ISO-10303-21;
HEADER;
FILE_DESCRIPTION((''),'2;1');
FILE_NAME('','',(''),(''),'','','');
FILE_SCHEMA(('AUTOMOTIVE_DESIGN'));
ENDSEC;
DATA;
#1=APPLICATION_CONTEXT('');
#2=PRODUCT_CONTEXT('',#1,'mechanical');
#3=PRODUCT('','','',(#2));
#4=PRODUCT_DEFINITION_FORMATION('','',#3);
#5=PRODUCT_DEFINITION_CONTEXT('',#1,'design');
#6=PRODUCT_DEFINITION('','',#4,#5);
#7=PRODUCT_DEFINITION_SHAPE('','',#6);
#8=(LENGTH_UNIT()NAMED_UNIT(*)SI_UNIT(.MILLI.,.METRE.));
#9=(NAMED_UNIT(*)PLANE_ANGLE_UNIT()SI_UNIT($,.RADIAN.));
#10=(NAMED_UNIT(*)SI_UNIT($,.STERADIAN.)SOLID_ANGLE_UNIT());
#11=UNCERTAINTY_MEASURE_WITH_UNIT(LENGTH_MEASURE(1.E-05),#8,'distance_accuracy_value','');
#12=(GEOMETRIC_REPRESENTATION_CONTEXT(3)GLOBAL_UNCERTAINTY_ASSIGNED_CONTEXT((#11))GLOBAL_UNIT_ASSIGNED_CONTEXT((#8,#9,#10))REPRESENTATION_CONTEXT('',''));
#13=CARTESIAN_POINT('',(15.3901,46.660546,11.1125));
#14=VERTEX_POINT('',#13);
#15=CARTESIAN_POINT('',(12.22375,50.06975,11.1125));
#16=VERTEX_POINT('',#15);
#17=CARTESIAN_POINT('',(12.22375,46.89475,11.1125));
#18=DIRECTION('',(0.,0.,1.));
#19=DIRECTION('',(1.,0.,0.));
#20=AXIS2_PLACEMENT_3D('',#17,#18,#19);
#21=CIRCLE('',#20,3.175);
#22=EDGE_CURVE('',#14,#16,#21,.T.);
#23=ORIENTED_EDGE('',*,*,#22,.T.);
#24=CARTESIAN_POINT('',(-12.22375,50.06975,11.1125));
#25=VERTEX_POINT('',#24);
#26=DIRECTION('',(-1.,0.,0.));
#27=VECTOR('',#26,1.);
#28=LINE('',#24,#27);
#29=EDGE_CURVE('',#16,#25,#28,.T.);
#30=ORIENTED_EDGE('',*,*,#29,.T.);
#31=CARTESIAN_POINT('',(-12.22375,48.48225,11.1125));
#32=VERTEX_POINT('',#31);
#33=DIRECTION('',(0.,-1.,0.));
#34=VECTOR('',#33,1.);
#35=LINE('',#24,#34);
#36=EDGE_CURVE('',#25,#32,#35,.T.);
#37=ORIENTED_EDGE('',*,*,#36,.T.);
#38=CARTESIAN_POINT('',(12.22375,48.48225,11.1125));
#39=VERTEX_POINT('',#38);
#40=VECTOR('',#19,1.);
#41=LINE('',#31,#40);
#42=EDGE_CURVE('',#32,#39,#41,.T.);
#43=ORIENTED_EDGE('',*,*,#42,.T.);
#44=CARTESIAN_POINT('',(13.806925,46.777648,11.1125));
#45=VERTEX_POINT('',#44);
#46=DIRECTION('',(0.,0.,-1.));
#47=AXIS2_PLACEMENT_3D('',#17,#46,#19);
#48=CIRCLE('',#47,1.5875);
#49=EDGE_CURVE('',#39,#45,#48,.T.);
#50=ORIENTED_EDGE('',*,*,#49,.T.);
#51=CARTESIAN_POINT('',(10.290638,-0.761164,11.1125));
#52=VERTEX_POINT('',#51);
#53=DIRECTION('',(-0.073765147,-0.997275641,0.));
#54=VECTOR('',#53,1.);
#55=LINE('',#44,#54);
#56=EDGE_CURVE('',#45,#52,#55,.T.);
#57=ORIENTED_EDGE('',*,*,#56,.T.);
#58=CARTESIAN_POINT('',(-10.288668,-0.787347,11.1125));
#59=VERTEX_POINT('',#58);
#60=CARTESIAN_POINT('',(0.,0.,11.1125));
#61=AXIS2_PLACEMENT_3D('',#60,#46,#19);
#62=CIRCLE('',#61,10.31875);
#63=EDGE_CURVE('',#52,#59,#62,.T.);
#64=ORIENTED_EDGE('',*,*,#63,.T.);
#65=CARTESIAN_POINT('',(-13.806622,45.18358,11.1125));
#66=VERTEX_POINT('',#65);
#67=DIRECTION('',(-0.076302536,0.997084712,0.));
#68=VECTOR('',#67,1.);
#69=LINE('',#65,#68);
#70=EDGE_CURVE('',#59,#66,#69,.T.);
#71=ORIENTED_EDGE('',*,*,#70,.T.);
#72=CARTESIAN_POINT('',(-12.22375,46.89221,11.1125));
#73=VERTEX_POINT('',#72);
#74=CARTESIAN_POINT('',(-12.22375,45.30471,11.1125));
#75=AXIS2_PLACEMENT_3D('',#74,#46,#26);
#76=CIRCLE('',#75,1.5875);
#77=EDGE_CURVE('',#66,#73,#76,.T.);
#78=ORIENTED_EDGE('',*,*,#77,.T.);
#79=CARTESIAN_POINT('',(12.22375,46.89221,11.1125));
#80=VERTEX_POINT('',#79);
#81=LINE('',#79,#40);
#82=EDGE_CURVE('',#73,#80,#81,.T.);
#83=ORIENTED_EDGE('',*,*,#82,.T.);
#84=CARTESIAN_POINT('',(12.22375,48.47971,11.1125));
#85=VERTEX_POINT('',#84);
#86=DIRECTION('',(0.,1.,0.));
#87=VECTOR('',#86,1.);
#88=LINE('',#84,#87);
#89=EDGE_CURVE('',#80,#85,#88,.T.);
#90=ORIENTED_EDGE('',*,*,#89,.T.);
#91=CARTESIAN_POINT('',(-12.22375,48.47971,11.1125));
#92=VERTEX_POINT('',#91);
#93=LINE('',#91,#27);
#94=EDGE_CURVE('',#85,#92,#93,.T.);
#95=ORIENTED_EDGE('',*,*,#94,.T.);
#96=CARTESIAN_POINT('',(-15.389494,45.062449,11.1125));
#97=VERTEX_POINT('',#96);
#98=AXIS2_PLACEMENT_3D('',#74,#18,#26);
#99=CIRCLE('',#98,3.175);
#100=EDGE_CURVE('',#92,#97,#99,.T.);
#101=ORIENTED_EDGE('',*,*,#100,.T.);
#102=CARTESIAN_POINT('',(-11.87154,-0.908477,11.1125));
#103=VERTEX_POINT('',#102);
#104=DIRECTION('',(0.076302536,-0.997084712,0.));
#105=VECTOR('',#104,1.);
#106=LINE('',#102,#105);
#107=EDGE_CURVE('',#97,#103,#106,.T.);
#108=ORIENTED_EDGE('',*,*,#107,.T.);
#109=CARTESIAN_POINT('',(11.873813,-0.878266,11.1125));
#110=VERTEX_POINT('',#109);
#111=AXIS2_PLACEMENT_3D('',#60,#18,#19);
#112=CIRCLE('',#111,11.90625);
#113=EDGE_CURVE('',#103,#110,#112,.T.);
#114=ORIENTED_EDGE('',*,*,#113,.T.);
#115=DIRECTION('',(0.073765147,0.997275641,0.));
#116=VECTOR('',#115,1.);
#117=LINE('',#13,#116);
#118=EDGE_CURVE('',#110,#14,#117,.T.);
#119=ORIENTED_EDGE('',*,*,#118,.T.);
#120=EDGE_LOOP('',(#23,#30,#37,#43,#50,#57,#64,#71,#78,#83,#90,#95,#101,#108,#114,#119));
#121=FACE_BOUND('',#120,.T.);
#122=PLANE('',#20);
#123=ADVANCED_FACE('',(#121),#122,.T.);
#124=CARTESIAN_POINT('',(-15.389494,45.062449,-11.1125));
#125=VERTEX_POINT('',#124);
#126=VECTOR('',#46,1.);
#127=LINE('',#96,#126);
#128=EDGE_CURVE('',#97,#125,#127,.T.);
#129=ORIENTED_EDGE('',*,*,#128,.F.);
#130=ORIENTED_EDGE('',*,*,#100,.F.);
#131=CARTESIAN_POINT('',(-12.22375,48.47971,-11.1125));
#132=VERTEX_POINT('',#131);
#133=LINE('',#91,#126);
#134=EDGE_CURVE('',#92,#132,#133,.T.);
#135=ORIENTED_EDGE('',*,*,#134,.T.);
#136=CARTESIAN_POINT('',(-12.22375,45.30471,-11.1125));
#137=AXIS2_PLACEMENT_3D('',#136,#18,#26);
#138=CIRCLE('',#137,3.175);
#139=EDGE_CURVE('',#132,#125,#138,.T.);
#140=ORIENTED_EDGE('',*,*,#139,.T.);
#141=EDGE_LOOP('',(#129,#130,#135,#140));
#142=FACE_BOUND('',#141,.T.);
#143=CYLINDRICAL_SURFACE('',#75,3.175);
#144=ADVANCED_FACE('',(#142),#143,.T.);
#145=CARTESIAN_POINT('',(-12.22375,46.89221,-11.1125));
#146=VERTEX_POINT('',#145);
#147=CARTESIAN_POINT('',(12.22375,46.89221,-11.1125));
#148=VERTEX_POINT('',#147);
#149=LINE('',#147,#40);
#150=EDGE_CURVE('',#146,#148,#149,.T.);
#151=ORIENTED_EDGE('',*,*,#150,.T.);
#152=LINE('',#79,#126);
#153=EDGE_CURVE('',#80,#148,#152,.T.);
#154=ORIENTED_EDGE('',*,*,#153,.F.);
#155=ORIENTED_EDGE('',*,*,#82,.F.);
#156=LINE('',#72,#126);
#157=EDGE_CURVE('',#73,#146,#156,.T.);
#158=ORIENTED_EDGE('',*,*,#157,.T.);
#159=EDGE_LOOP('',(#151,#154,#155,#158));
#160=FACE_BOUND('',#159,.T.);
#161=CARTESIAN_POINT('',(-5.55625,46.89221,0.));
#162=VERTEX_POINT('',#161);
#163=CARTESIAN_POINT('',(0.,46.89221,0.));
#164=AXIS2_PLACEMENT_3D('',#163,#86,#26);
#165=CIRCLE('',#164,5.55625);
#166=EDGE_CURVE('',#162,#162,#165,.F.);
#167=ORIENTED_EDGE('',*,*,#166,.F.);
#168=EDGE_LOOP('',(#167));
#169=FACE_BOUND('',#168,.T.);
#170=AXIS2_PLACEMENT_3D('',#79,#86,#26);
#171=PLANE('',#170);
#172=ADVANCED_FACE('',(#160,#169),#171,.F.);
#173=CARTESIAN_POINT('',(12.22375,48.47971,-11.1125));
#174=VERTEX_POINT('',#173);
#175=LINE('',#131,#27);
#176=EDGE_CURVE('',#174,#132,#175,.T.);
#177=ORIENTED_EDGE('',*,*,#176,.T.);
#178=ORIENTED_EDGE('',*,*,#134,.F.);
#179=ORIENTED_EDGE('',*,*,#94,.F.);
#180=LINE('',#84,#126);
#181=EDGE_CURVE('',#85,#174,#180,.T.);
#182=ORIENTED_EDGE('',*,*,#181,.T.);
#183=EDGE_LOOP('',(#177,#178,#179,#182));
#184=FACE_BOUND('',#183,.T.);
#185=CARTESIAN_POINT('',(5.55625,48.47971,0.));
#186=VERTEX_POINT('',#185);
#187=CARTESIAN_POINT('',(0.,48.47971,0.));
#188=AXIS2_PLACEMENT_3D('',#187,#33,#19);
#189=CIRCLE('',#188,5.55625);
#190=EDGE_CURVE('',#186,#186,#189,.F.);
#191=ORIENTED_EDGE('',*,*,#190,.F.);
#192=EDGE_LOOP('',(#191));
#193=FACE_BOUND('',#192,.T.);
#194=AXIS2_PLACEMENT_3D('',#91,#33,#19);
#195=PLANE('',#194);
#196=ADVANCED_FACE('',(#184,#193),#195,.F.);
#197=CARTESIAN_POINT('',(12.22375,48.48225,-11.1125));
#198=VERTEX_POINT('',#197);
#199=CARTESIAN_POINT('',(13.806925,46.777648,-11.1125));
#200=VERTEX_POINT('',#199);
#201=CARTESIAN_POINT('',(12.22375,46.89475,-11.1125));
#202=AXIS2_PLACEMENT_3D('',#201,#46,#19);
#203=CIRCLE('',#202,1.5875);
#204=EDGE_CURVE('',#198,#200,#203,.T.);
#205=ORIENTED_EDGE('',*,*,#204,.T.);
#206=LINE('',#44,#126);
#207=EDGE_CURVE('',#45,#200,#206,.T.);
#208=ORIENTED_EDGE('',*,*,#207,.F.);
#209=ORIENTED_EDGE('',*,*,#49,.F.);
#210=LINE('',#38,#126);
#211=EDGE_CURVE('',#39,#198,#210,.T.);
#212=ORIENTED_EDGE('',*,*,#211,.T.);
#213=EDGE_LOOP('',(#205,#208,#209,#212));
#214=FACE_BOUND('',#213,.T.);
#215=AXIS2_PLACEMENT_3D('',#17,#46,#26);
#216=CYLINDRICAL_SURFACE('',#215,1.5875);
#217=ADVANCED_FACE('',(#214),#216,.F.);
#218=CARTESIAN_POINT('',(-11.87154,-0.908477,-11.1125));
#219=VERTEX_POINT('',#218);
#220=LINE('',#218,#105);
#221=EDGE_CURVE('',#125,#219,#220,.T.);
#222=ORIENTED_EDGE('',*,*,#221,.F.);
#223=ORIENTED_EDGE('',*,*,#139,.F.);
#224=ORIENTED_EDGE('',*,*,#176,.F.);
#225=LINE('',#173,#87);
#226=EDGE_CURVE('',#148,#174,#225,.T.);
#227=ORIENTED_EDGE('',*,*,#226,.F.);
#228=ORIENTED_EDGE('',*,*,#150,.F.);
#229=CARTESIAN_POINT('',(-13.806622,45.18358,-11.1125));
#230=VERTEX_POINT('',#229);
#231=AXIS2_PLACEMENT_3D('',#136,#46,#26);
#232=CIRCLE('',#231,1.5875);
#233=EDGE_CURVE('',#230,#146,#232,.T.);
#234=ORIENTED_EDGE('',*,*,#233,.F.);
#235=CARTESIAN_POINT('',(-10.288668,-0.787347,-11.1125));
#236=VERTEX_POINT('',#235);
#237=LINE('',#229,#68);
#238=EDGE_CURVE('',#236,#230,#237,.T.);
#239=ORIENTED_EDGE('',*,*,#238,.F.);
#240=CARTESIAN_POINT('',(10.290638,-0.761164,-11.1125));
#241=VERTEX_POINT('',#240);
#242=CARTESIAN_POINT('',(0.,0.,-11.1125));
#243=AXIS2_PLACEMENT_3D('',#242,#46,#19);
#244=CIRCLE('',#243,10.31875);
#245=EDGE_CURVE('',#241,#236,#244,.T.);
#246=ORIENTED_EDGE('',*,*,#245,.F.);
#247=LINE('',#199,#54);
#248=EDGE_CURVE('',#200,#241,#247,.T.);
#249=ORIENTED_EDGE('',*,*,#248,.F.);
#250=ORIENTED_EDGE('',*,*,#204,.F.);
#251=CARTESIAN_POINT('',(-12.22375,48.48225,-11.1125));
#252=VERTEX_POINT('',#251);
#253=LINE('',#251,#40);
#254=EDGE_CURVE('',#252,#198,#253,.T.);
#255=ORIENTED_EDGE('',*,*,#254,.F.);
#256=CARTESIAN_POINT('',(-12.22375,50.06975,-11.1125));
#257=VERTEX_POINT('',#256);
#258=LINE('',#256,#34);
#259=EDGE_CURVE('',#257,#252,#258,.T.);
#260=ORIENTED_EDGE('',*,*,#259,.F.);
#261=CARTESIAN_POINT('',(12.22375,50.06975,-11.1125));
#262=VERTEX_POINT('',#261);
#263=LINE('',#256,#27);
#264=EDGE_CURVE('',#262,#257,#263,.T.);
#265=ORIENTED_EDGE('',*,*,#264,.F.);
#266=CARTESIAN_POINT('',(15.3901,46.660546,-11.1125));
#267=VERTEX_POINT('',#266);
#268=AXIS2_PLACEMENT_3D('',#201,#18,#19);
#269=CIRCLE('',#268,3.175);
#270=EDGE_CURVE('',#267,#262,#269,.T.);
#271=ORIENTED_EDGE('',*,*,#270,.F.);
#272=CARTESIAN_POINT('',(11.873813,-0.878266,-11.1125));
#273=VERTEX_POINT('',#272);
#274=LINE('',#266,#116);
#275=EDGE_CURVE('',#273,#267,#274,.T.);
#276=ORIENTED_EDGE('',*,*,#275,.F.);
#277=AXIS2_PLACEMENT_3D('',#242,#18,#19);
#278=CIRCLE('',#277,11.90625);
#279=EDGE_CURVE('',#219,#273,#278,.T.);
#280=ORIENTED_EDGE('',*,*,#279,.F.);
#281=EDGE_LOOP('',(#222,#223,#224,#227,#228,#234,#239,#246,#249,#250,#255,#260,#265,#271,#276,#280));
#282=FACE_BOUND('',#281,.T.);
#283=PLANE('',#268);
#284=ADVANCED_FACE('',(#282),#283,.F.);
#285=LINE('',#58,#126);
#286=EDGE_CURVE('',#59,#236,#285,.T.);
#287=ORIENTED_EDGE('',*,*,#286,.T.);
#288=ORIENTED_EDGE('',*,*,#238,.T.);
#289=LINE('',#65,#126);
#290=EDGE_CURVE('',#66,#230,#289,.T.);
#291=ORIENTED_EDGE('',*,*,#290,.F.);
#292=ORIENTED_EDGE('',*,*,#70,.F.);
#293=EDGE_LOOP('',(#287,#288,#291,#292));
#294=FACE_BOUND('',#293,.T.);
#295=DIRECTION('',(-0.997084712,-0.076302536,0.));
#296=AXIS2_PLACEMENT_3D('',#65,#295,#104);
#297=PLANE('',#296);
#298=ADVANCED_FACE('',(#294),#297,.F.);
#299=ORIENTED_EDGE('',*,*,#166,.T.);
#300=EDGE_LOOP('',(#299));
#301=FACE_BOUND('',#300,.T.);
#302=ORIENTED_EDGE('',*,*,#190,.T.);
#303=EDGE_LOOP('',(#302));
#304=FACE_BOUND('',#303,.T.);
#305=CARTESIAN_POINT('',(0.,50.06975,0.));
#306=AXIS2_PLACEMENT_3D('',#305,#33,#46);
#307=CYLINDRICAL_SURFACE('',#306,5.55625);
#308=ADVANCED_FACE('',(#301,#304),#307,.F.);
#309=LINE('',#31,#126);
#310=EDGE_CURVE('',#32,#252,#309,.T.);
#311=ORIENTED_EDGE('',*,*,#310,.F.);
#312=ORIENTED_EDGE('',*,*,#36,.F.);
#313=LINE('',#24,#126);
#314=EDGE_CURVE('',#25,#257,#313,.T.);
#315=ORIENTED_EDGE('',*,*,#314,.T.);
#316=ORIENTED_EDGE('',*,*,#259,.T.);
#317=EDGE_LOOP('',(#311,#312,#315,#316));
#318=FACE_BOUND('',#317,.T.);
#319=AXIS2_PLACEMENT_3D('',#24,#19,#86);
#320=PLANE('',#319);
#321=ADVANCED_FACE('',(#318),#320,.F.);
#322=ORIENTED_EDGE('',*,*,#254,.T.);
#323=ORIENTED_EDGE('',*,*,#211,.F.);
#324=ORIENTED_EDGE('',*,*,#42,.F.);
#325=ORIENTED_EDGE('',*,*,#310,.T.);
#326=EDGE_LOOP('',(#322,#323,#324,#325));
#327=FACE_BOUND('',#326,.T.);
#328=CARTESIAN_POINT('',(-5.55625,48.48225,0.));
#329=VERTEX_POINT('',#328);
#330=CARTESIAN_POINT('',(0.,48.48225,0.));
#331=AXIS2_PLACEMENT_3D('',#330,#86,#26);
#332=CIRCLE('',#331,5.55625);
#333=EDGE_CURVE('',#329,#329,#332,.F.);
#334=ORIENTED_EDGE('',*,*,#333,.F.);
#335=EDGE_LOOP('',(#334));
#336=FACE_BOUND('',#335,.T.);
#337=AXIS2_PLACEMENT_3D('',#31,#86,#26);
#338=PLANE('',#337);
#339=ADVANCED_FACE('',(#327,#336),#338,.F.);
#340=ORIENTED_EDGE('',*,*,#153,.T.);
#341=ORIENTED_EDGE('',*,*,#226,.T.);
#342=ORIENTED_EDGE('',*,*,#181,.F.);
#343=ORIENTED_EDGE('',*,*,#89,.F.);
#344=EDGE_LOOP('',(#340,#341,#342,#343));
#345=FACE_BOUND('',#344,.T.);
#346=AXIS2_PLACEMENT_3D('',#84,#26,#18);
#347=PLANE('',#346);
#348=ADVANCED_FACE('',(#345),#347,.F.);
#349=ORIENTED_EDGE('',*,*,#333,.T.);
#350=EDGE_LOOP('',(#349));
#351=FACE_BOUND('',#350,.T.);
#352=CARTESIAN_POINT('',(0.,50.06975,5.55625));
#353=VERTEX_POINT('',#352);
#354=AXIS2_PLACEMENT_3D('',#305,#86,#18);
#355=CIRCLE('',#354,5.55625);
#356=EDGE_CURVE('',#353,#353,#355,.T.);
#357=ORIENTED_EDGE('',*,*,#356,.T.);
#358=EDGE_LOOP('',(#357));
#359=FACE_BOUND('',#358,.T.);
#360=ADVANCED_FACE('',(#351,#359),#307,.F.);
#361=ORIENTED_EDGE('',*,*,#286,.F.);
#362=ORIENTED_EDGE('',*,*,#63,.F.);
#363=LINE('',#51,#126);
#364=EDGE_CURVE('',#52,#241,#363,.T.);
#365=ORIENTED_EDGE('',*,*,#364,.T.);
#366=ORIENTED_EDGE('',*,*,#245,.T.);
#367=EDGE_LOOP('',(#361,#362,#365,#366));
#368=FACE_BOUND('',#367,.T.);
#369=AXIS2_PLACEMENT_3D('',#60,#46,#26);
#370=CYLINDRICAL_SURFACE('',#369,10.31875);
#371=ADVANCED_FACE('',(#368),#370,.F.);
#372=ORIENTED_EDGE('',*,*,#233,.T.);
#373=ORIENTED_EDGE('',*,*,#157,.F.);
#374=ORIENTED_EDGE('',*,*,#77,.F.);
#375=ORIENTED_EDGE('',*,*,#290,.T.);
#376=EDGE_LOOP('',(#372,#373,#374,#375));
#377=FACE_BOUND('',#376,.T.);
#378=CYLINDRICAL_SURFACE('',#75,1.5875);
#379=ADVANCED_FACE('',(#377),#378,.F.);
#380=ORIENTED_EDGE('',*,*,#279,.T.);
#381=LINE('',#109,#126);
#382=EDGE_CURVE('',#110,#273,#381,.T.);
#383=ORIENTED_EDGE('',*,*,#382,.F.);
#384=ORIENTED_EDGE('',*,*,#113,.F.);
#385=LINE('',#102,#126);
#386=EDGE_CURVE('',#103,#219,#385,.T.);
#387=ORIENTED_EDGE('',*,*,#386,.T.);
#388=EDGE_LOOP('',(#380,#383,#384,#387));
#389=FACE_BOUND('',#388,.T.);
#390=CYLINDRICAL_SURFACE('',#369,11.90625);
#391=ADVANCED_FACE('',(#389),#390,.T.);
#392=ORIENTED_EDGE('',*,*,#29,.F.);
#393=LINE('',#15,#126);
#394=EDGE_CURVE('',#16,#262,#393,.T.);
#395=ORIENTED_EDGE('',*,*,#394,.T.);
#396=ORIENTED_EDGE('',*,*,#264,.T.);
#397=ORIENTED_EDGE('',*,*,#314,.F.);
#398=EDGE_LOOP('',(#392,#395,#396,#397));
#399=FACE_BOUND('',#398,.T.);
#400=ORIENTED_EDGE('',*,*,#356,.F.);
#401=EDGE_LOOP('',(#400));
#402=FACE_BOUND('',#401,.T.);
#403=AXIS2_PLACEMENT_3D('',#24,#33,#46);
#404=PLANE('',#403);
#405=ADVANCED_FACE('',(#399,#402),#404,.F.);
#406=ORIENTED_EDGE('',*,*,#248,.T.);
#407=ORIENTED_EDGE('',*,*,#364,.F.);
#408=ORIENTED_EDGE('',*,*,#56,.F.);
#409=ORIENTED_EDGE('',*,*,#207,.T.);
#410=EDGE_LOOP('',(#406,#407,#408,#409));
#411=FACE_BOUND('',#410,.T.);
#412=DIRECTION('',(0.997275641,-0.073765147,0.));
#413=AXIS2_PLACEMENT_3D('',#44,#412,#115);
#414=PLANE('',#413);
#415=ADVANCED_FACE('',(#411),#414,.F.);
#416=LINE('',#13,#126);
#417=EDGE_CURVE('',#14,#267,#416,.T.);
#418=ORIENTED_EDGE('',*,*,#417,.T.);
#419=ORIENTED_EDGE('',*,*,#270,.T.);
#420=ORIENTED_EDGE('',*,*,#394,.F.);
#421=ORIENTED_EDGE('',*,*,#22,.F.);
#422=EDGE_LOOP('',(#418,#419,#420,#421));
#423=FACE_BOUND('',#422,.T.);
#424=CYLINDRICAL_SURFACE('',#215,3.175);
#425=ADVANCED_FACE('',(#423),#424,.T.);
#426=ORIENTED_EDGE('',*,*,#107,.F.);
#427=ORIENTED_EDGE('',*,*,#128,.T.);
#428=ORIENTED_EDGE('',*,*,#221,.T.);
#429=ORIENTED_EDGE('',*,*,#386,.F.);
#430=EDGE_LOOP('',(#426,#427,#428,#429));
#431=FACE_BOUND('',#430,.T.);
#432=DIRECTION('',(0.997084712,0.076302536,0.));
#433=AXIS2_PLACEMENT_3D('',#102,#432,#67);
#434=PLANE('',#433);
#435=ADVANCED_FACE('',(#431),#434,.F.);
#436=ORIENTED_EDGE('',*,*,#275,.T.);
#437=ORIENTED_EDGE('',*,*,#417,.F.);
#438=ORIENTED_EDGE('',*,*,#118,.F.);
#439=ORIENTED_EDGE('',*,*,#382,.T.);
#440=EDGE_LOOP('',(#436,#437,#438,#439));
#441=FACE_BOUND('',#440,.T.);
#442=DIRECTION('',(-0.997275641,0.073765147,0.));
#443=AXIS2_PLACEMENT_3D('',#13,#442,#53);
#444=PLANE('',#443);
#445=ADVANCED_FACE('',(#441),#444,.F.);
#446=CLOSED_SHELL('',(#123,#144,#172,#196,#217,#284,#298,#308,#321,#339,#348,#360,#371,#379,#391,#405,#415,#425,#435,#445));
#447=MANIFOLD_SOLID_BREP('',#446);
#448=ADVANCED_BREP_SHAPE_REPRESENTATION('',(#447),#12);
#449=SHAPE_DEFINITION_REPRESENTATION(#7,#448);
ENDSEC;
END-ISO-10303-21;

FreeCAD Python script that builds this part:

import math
import FreeCAD as App
import Part
import Sketcher

V = App.Vector
Q = App.Units.Quantity

doc = App.newDocument("Part")
body = doc.addObject("PartDesign::Body", "Body")

sketch1 = body.newObject("Sketcher::SketchObject", "Sketch")
sketch1.AttachmentSupport = (doc.getObject("XY_Plane"), [""])
sketch1.MapMode = "FlatFace"
sketch1.addGeometry([
    Part.LineSegment(V(12.2, 50.1, 0), V(-12.2, 50.1, 0)),
    Part.LineSegment(V(-12.2, 50.1, 0), V(-12.2, 48.5, 0)),
    Part.LineSegment(V(-12.2, 48.5, 0), V(12.2, 48.5, 0)),
    Part.ArcOfCircle(Part.Circle(V(12.2, 46.9, 0), V(0, 0, 1), 1.6), math.radians(-4), math.radians(90)),
    Part.LineSegment(V(13.8, 46.8, 0), V(10.3, -0.8, 0)),
    Part.ArcOfCircle(Part.Circle(V(0, 0, 0), V(0, 0, 1), 10.3), math.radians(-176), math.radians(-4)),
    Part.LineSegment(V(-10.3, -0.8, 0), V(-13.8, 45.2, 0)),
    Part.ArcOfCircle(Part.Circle(V(-12.2, 45.3, 0), V(0, 0, 1), 1.6), math.radians(90), math.radians(184)),
    Part.LineSegment(V(-12.2, 46.9, 0), V(12.2, 46.9, 0)),
    Part.LineSegment(V(12.2, 46.9, 0), V(12.2, 48.5, 0)),
    Part.LineSegment(V(12.2, 48.5, 0), V(-12.2, 48.5, 0)),
    Part.ArcOfCircle(Part.Circle(V(-12.2, 45.3, 0), V(0, 0, 1), 3.2), math.radians(90), math.radians(184)),
    Part.LineSegment(V(-15.4, 45.1, 0), V(-11.9, -0.9, 0)),
    Part.ArcOfCircle(Part.Circle(V(0, 0, 0), V(0, 0, 1), 11.9), math.radians(-176), math.radians(-4)),
    Part.LineSegment(V(11.9, -0.9, 0), V(15.4, 46.7, 0)),
    Part.ArcOfCircle(Part.Circle(V(12.2, 46.9, 0), V(0, 0, 1), 3.2), math.radians(-4), math.radians(90)),
], False)
sketch1.addConstraint([
    Sketcher.Constraint("Coincident", 0, 2, 1, 1),
    Sketcher.Constraint("Coincident", 1, 2, 2, 1),
    Sketcher.Constraint("Tangent", 2, 2, 3, 2),
    Sketcher.Constraint("Tangent", 3, 1, 4, 1),
    Sketcher.Constraint("Tangent", 4, 2, 5, 2),
    Sketcher.Constraint("Tangent", 5, 1, 6, 1),
    Sketcher.Constraint("Tangent", 6, 2, 7, 2),
    Sketcher.Constraint("Tangent", 7, 1, 8, 1),
    Sketcher.Constraint("Coincident", 8, 2, 9, 1),
    Sketcher.Constraint("Coincident", 9, 2, 10, 1),
    Sketcher.Constraint("Tangent", 10, 2, 11, 1),
    Sketcher.Constraint("Tangent", 11, 2, 12, 1),
    Sketcher.Constraint("Tangent", 12, 2, 13, 1),
    Sketcher.Constraint("Tangent", 13, 2, 14, 1),
    Sketcher.Constraint("Tangent", 14, 2, 15, 1),
    Sketcher.Constraint("Tangent", 15, 2, 0, 1),
    Sketcher.Constraint("Horizontal", 0),
    Sketcher.Constraint("Vertical", 1),
    Sketcher.Constraint("Horizontal", 2),
    Sketcher.Constraint("Horizontal", 8),
    Sketcher.Constraint("Vertical", 9),
    Sketcher.Constraint("Horizontal", 10),
    Sketcher.Constraint("Coincident", 5, 3, -1, 1),
    Sketcher.Constraint("Coincident", 13, 3, -1, 1),
    Sketcher.Constraint("Coincident", 11, 3, 7, 3),
    Sketcher.Constraint("Coincident", 15, 3, 3, 3),
    Sketcher.Constraint("Equal", 3, 7),
    Sketcher.Constraint("Equal", 11, 15),
    Sketcher.Constraint("Parallel", 6, 12),
    Sketcher.Constraint("Vertical", 11, 3, 0, 2),
    Sketcher.Constraint("Vertical", 2, 2, 8, 2),
    Sketcher.Constraint("Radius", 3, Q("0.0625 in")),
    Sketcher.Constraint("Radius", 5, Q("0.40625 in")),
    Sketcher.Constraint("Radius", 11, Q("0.125 in")),
    Sketcher.Constraint("DistanceX", 0, 2, 0, 1, Q("0.9625 in")),
    Sketcher.Constraint("DistanceY", 7, 3, 3, 3, Q("0.0626 in")),
    Sketcher.Constraint("DistanceX", -1, 1, 14, 2, Q("15.3901 mm")),
    Sketcher.Constraint("Distance", 4, Q("47.668679 mm")),
])
pad1 = body.newObject("PartDesign::Pad", "Pad")
pad1.Profile = sketch1
pad1.Length = Q("0.875 in")
pad1.Midplane = True

sketch2 = body.newObject("Sketcher::SketchObject", "Sketch001")
sketch2.AttachmentSupport = (doc.getObject("XZ_Plane"), [""])
sketch2.MapMode = "FlatFace"
sketch2.addGeometry(Part.Circle(V(0, 0, 0), V(0, 0, 1), 6), False)
sketch2.addConstraint([
    Sketcher.Constraint("Coincident", 0, 3, -1, 1),
    Sketcher.Constraint("Diameter", 0, Q("0.4375 in")),
])
pocket1 = body.newObject("PartDesign::Pocket", "Pocket")
pocket1.Profile = sketch2
pocket1.Type = "ThroughAll"

doc.recompute()
